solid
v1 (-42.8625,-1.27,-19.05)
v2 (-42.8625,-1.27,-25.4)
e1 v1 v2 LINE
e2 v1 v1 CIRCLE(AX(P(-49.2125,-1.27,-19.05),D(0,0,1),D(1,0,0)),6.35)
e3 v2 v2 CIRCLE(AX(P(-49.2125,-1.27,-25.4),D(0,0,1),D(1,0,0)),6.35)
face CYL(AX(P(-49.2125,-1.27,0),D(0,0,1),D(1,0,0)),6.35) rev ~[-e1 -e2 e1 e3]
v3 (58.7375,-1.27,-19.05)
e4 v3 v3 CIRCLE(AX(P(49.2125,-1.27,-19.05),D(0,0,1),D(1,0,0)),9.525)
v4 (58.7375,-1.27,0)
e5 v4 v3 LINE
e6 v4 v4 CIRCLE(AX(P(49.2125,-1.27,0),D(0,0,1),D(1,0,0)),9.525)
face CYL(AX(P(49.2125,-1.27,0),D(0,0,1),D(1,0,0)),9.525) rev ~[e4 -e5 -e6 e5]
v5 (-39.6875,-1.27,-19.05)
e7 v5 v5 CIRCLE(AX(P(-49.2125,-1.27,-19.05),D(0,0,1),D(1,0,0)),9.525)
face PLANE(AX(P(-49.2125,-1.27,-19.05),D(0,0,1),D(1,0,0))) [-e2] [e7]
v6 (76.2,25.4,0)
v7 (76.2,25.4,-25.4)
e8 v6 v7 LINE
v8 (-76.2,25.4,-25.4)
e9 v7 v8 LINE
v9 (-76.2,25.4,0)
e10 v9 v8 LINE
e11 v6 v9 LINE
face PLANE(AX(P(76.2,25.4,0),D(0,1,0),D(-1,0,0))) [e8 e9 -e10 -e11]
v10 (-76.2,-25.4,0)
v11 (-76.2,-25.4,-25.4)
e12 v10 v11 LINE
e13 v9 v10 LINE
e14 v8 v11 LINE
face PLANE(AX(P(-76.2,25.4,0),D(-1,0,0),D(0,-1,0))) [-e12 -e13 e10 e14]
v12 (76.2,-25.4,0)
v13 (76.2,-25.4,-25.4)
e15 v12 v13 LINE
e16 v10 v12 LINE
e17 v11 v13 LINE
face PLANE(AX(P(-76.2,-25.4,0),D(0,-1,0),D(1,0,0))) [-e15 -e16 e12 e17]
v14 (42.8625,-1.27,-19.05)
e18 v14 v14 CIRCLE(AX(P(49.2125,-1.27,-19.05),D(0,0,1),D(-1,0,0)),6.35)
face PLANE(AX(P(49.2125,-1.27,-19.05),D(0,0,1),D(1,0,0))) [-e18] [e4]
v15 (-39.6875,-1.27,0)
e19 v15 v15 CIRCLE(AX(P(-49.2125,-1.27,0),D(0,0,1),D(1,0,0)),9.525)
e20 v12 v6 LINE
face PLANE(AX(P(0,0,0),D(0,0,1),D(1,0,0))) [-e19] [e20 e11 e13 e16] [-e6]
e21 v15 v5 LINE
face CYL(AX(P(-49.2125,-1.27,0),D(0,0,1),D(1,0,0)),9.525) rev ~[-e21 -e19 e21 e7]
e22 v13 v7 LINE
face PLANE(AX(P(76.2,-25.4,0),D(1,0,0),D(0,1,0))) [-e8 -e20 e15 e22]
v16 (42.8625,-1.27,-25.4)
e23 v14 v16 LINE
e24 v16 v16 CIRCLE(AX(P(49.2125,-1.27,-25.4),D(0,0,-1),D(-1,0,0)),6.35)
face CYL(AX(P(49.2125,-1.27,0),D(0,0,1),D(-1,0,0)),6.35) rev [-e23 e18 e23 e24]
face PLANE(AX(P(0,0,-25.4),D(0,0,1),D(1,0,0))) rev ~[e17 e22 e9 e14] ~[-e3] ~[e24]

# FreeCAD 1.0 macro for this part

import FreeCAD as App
import Part
import Sketcher
from FreeCAD import Vector
Q = App.Units.Quantity


def add_polygon(sketch, points):
    """Adds a closed chain of lines whose ends are joined by coincident constraints."""
    first, n = sketch.GeometryCount, len(points)
    for a, b in zip(points, points[1:] + points[:1]):
        sketch.addGeometry(Part.LineSegment(App.Vector(*a, 0), App.Vector(*b, 0)), False)
    for i in range(n):
        sketch.addConstraint(Sketcher.Constraint("Coincident", first + i, 2, first + (i + 1) % n, 1))

doc = App.newDocument("Part")
body = doc.addObject("PartDesign::Body", "Body")

sketch1 = body.newObject("Sketcher::SketchObject", "Sketch")
sketch1.AttachmentSupport = (doc.getObject("XY_Plane"), [""])
sketch1.MapMode = "FlatFace"
add_polygon(sketch1, [(76, -25), (76, 25), (-76, 25), (-76, -25)])
sketch1.addGeometry(Part.Circle(Vector(49, -1, 0), Vector(0, 0, 1), 6), False)
sketch1.addGeometry(Part.Circle(Vector(-49, -1, 0), Vector(0, 0, 1), 6), False)
sketch1.addConstraint(Sketcher.Constraint("Vertical", 0))
sketch1.addConstraint(Sketcher.Constraint("Horizontal", 1))
sketch1.addConstraint(Sketcher.Constraint("Vertical", 2))
sketch1.addConstraint(Sketcher.Constraint("Horizontal", 3))
sketch1.addConstraint(Sketcher.Constraint("Equal", 4, 5))
sketch1.addConstraint(Sketcher.Constraint("Symmetric", 0, 2, 2, 2, -1, 1))
sketch1.addConstraint(Sketcher.Constraint("Symmetric", 4, 3, 5, 3, -2))
sketch1.addConstraint(Sketcher.Constraint("Diameter", 4, Q("0.5 in")))
sketch1.addConstraint(Sketcher.Constraint("DistanceX", 1, 2, 1, 1, Q("6 in")))
sketch1.addConstraint(Sketcher.Constraint("DistanceY", 0, 1, 0, 2, Q("2 in")))
sketch1.addConstraint(Sketcher.Constraint("DistanceY", 4, 3, -1, 1, Q("0.05 in")))
sketch1.addConstraint(Sketcher.Constraint("DistanceX", -1, 1, 4, 3, Q("1.9375 in")))
pad1 = body.newObject("PartDesign::Pad", "Pad")
pad1.Profile = sketch1
pad1.Length = Q("1 in")
pad1.Reversed = True

sketch2 = body.newObject("Sketcher::SketchObject", "Sketch001")
sketch2.AttachmentSupport = (doc.getObject("XY_Plane"), [""])
sketch2.MapMode = "FlatFace"
sketch2.addGeometry(Part.Circle(Vector(-49, -1, 0), Vector(0, 0, 1), 10), False)
sketch2.addGeometry(Part.Circle(Vector(49, -1, 0), Vector(0, 0, 1), 10), False)
sketch2.addConstraint(Sketcher.Constraint("Equal", 0, 1))
sketch2.addConstraint(Sketcher.Constraint("Symmetric", 0, 3, 1, 3, -2))
sketch2.addConstraint(Sketcher.Constraint("Diameter", 0, Q("0.75 in")))
sketch2.addConstraint(Sketcher.Constraint("DistanceY", 0, 3, -1, 1, Q("0.05 in")))
sketch2.addConstraint(Sketcher.Constraint("DistanceX", 0, 3, -1, 1, Q("1.9375 in")))
pocket1 = body.newObject("PartDesign::Pocket", "Pocket")
pocket1.Profile = sketch2
pocket1.Length = Q("0.75 in")

doc.recompute()
